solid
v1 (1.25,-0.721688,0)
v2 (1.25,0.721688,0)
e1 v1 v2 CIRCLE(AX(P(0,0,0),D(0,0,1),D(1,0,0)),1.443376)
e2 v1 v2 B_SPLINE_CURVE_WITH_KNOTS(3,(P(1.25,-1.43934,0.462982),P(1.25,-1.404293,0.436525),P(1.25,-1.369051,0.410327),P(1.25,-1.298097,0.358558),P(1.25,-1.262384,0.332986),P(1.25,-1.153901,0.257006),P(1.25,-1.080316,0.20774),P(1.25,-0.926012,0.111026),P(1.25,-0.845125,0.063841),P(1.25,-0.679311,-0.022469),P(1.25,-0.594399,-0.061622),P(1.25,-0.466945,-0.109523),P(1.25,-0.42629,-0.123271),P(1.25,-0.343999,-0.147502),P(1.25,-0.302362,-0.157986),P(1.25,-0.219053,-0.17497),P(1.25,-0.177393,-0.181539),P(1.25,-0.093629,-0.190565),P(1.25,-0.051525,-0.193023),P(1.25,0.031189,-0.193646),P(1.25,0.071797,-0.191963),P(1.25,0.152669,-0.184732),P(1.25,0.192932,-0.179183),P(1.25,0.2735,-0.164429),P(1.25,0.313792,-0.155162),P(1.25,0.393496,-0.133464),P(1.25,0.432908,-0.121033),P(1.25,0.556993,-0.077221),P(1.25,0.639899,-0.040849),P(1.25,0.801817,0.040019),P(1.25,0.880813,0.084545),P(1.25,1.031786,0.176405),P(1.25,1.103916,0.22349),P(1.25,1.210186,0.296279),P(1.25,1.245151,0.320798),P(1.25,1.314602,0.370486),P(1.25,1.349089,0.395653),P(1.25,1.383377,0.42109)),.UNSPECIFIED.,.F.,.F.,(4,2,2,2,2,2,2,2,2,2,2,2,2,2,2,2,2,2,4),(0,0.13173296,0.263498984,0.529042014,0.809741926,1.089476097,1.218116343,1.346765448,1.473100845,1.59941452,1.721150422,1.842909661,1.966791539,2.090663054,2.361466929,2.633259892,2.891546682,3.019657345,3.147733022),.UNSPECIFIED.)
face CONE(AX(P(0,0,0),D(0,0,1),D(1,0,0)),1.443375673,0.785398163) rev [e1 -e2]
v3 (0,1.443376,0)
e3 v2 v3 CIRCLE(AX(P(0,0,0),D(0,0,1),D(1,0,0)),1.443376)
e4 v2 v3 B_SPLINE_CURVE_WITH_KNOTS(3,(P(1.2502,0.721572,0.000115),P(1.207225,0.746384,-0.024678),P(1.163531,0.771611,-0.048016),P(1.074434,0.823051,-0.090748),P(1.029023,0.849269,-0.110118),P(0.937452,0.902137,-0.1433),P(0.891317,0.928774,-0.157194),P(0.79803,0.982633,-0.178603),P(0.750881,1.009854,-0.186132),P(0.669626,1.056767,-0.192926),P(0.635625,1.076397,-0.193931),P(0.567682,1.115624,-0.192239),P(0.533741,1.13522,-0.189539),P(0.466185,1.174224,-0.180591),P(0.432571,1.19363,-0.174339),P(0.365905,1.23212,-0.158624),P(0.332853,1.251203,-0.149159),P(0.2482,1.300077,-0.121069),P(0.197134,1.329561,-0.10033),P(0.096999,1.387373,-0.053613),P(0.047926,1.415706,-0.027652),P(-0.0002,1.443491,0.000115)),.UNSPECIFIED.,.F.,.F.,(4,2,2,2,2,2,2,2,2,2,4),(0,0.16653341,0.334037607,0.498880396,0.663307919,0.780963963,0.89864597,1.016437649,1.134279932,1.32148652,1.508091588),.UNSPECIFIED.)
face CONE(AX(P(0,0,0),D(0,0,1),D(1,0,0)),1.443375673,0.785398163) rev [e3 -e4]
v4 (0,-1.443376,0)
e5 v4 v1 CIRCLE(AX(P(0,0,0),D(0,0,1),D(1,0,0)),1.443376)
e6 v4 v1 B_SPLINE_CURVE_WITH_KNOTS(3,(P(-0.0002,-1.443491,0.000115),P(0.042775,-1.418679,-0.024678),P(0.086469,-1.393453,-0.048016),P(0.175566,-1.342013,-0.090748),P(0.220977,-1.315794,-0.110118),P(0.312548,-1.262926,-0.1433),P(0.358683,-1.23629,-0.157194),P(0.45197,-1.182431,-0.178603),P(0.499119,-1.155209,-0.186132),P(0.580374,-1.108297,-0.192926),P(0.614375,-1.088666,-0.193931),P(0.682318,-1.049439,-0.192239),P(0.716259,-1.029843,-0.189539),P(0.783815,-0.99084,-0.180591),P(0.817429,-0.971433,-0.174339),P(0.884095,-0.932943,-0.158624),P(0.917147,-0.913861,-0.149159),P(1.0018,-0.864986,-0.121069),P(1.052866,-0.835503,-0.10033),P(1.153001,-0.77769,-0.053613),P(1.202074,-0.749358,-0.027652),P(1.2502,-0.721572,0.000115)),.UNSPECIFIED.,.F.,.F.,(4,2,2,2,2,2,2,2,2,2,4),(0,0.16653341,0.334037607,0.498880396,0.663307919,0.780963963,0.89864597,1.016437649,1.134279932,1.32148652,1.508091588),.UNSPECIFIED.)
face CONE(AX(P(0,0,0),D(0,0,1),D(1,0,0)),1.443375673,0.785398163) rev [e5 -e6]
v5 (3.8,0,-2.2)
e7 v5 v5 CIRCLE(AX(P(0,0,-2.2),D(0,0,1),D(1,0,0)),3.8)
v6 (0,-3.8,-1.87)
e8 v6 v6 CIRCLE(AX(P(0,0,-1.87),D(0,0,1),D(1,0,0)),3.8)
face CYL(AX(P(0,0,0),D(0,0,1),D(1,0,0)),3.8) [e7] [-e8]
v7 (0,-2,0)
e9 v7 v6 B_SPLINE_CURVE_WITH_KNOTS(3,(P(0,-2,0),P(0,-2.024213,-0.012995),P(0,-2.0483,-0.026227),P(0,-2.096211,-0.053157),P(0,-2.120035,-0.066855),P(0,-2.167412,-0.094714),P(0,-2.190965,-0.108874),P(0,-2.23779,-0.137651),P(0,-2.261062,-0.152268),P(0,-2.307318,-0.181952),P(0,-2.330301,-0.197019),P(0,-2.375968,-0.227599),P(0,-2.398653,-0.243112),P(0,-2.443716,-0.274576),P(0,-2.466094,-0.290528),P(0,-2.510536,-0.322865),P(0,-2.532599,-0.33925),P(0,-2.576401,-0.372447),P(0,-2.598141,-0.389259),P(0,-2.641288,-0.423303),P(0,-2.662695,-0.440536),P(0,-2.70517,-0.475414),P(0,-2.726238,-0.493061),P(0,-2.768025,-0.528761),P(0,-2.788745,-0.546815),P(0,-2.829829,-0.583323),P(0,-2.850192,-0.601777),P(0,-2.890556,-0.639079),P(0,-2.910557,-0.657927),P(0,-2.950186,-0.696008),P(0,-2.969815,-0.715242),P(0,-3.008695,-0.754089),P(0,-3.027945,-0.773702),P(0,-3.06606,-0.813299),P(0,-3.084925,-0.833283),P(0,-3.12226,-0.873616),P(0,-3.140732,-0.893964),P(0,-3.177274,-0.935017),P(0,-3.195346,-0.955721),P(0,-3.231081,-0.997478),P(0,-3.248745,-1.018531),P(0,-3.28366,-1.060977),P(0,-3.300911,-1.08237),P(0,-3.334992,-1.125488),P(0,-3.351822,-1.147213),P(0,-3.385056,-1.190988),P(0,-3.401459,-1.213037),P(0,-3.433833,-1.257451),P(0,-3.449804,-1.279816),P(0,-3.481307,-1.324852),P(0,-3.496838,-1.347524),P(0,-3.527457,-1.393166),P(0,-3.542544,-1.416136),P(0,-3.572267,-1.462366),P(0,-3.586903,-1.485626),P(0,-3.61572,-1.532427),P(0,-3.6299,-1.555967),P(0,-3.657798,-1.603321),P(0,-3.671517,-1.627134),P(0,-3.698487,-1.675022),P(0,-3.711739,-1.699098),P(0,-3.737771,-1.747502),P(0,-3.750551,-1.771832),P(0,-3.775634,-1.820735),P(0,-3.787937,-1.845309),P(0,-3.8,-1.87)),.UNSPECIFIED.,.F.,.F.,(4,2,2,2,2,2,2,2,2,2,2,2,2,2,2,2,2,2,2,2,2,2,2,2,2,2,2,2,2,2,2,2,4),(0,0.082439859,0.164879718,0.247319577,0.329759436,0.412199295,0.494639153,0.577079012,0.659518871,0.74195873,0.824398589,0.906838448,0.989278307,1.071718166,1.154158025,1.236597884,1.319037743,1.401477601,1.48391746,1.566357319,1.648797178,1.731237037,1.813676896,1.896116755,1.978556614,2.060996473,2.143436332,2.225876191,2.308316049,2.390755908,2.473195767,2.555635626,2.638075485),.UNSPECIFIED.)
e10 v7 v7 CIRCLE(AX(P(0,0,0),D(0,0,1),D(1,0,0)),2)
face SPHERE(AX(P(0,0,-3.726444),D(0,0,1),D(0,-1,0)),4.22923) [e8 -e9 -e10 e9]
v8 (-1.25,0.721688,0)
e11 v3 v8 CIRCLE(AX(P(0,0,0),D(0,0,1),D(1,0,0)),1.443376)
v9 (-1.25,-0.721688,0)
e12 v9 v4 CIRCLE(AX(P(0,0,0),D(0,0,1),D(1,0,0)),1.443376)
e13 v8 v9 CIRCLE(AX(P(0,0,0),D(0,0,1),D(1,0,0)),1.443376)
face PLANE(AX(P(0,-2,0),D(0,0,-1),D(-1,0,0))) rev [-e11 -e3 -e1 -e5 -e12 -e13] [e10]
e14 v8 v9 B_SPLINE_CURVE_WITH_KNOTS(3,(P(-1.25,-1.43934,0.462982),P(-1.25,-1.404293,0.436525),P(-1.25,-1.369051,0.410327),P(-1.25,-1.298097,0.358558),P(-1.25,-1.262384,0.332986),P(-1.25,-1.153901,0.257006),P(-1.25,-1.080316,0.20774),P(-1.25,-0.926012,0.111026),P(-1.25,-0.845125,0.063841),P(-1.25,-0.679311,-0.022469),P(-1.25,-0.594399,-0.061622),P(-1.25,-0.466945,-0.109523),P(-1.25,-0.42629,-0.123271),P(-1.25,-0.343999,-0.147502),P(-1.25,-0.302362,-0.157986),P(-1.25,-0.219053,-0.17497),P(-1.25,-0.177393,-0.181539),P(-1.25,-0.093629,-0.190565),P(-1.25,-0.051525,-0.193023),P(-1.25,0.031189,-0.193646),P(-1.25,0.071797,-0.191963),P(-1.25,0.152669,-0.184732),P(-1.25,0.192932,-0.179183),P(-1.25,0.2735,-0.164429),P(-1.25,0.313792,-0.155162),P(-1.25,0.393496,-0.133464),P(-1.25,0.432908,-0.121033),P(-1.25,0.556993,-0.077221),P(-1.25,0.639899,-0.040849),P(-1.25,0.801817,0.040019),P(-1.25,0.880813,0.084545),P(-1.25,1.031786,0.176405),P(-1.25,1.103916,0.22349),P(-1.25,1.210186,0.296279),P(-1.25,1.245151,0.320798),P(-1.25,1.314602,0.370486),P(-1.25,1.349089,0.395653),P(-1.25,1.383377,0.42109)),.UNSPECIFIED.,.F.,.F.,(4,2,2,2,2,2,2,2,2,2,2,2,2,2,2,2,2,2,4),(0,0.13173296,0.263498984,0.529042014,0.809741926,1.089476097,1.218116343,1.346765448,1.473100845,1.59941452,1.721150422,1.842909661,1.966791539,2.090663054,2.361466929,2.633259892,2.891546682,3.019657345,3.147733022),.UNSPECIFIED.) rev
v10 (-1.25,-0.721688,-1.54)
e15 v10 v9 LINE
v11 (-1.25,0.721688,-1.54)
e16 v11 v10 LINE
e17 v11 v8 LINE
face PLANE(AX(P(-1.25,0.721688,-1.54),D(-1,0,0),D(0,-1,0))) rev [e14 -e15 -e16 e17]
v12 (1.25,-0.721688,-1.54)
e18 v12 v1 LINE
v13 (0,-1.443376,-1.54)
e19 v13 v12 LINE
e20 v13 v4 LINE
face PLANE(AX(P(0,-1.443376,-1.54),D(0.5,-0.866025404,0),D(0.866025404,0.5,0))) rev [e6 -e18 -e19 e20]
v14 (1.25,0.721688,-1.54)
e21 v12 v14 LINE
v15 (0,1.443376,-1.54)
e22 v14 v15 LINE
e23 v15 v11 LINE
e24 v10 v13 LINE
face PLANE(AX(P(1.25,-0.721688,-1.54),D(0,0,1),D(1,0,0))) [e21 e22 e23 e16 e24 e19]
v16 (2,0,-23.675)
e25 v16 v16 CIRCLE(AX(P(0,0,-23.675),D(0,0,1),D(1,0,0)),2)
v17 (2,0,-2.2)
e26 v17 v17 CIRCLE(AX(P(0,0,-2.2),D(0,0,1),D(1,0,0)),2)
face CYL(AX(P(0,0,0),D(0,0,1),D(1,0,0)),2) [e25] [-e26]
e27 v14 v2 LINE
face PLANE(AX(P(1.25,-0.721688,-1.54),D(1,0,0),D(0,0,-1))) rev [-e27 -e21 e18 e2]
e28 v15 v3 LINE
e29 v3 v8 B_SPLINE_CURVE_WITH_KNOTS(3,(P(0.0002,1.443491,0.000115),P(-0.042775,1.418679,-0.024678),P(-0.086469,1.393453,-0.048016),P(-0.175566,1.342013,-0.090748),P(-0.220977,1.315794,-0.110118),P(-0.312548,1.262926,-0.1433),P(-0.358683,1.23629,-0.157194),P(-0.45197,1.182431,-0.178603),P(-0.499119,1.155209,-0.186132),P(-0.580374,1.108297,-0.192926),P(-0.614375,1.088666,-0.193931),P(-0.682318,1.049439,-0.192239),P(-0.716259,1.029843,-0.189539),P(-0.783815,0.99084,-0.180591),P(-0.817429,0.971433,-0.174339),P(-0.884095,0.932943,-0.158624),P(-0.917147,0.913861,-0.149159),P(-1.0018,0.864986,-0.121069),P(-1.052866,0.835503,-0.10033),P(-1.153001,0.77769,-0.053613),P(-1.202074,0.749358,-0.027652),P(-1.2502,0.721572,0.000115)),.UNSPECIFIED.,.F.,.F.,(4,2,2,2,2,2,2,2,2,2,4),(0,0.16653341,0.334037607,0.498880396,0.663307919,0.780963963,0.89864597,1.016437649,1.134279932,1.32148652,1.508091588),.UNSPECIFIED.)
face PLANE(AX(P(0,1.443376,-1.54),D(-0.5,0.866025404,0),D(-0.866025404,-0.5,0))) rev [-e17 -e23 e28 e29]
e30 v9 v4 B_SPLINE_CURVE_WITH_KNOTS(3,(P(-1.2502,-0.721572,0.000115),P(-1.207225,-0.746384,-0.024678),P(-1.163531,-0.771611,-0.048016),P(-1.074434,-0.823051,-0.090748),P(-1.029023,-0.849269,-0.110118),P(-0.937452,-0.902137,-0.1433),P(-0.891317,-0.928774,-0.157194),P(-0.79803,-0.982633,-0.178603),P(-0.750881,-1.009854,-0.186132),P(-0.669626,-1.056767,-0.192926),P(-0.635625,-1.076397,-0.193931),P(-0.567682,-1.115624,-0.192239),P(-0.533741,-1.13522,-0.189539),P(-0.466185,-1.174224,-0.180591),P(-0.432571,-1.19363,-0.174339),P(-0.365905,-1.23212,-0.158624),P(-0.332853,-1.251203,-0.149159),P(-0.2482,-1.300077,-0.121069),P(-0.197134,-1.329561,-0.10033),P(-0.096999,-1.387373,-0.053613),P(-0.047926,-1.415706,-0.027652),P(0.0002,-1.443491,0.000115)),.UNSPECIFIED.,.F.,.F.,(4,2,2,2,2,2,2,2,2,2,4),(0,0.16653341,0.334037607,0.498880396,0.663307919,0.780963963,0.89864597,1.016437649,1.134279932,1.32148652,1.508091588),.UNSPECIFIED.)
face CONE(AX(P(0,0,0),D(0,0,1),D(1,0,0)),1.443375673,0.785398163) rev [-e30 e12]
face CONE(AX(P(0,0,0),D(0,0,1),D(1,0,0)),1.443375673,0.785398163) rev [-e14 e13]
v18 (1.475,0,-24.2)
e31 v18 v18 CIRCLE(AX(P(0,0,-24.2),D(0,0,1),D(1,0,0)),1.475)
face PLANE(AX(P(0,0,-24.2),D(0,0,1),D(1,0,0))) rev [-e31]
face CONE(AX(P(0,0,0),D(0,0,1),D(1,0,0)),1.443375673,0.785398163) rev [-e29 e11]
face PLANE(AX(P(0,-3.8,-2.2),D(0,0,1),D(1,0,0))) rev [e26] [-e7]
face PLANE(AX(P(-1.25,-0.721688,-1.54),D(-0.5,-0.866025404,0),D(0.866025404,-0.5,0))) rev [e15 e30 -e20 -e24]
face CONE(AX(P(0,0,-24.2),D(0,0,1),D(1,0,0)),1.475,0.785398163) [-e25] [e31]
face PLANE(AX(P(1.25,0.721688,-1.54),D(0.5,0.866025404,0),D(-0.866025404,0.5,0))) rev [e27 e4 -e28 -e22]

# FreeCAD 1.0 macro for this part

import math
import FreeCAD as App
import Part
import Sketcher
Q = App.Units.Quantity


def add_polygon(sketch, points):
    """Adds a closed chain of lines whose ends are joined by coincident constraints."""
    first, n = sketch.GeometryCount, len(points)
    for a, b in zip(points, points[1:] + points[:1]):
        sketch.addGeometry(Part.LineSegment(App.Vector(*a, 0), App.Vector(*b, 0)), False)
    for i in range(n):
        sketch.addConstraint(Sketcher.Constraint("Coincident", first + i, 2, first + (i + 1) % n, 1))

doc = App.newDocument("Part")
body = doc.addObject("PartDesign::Body", "Body")

sketch1 = doc.addObject("Sketcher::SketchObject", "Sketch")
body.addObject(sketch1)
sketch1.AttachmentSupport = (doc.YZ_Plane, [""])
sketch1.MapMode = "FlatFace"
add_polygon(sketch1, [(1.475, -24.2), (2, -23.675), (2, -2.2), (0, -2.2), (0, -24.2)])
sketch1.addConstraint([
    Sketcher.Constraint("Vertical", 1),
    Sketcher.Constraint("Horizontal", 2),
    Sketcher.Constraint("Vertical", 3),
    Sketcher.Constraint("Horizontal", 4),
    Sketcher.Constraint("PointOnObject", 2, 2, -2),
    Sketcher.Constraint("DistanceX", 2, 2, 2, 1, 2.0),
    Sketcher.Constraint("DistanceY", 3, 2, 3, 1, 22.0),
    Sketcher.Constraint("Angle", 0, Q("45 deg")),
    Sketcher.Constraint("DistanceY", 1, 2, -1, 1, 2.2),
    Sketcher.Constraint("DistanceX", 4, 1, 4, 2, 1.475),
])
revolution = doc.addObject("PartDesign::Revolution", "Revolution")
body.addObject(revolution)
revolution.Profile = sketch1
revolution.ReferenceAxis = (sketch1, ["V_Axis"])
revolution.Angle = 360

sketch2 = doc.addObject("Sketcher::SketchObject", "Sketch001")
body.addObject(sketch2)
sketch2.AttachmentSupport = (doc.YZ_Plane, [""])
sketch2.MapMode = "FlatFace"
sketch2.addGeometry([
    Part.LineSegment(App.Vector(3.8, -2.2, 0), App.Vector(3.8, -1.87, 0)),
    Part.ArcOfCircle(Part.Circle(App.Vector(0, -3.726444, 0), App.Vector(0, 0, 1), 4.22923), math.radians(26.03726), math.radians(61.777335)),
    Part.LineSegment(App.Vector(2, 0, 0), App.Vector(0, 0, 0)),
    Part.LineSegment(App.Vector(0, 0, 0), App.Vector(0, -2.2, 0)),
    Part.LineSegment(App.Vector(0, -2.2, 0), App.Vector(3.8, -2.2, 0)),
], False)
sketch2.addConstraint([
    Sketcher.Constraint("Coincident", 0, 2, 1, 1),
    Sketcher.Constraint("Coincident", 1, 2, 2, 1),
    Sketcher.Constraint("Coincident", 2, 2, 3, 1),
    Sketcher.Constraint("Coincident", 3, 2, 4, 1),
    Sketcher.Constraint("Coincident", 4, 2, 0, 1),
    Sketcher.Constraint("Vertical", 0),
    Sketcher.Constraint("Horizontal", 2),
    Sketcher.Constraint("Vertical", 3),
    Sketcher.Constraint("Horizontal", 4),
    Sketcher.Constraint("Coincident", 2, 2, -1, 1),
    Sketcher.Constraint("PointOnObject", 1, 3, -2),
    Sketcher.Constraint("DistanceX", 2, 2, 2, 1, 2.0),
    Sketcher.Constraint("DistanceX", 4, 1, 4, 2, 3.8),
    Sketcher.Constraint("DistanceY", 3, 2, 3, 1, 2.2),
    Sketcher.Constraint("DistanceY", 0, 1, 0, 2, 0.33),
])
revolution2 = doc.addObject("PartDesign::Revolution", "Revolution001")
body.addObject(revolution2)
revolution2.Profile = sketch2
revolution2.ReferenceAxis = (sketch2, ["V_Axis"])
revolution2.Angle = 360

sketch3 = doc.addObject("Sketcher::SketchObject", "Sketch002")
body.addObject(sketch3)
sketch3.AttachmentSupport = (doc.XY_Plane, [""])
sketch3.MapMode = "FlatFace"
add_polygon(sketch3, [(1.25, -0.721688), (1.25, 0.721688), (0, 1.443376), (-1.25, 0.721688), (-1.25, -0.721688), (0, -1.443376)])
sketch3.addConstraint([
    Sketcher.Constraint("Vertical", 0),
    Sketcher.Constraint("Vertical", 3),
    Sketcher.Constraint("Symmetric", 0, 2, 3, 2, -1, 1),
    Sketcher.Constraint("Symmetric", 1, 2, 4, 2, -1, 1),
    Sketcher.Constraint("PointOnObject", 1, 2, -2),
    Sketcher.Constraint("Parallel", 2, 5),
    Sketcher.Constraint("Horizontal", 0, 2, 2, 2),
    Sketcher.Constraint("Angle", 1, Q("150 deg")),
    Sketcher.Constraint("DistanceX", 2, 2, 0, 2, 2.5),
    Sketcher.Constraint("DistanceY", 0, 1, 0, 2, 1.443376),
])
pocket1 = doc.addObject("PartDesign::Pocket", "Pocket")
body.addObject(pocket1)
pocket1.Profile = sketch3
pocket1.Length = 1.54

sketch4 = doc.addObject("Sketcher::SketchObject", "Sketch003")
body.addObject(sketch4)
sketch4.AttachmentSupport = (doc.YZ_Plane, [""])
sketch4.MapMode = "FlatFace"
add_polygon(sketch4, [(0, 0), (-1.443376, 0), (0, -1.443376)])
sketch4.addConstraint([
    Sketcher.Constraint("Horizontal", 0),
    Sketcher.Constraint("Vertical", 2),
    Sketcher.Constraint("Coincident", 2, 2, -1, 1),
    Sketcher.Constraint("Equal", 0, 2),
    Sketcher.Constraint("Distance", 1, 2.041241),
])
groove = doc.addObject("PartDesign::Groove", "Groove")
body.addObject(groove)
groove.Profile = sketch4
groove.ReferenceAxis = (sketch4, ["V_Axis"])
groove.Angle = 360

doc.recompute()
